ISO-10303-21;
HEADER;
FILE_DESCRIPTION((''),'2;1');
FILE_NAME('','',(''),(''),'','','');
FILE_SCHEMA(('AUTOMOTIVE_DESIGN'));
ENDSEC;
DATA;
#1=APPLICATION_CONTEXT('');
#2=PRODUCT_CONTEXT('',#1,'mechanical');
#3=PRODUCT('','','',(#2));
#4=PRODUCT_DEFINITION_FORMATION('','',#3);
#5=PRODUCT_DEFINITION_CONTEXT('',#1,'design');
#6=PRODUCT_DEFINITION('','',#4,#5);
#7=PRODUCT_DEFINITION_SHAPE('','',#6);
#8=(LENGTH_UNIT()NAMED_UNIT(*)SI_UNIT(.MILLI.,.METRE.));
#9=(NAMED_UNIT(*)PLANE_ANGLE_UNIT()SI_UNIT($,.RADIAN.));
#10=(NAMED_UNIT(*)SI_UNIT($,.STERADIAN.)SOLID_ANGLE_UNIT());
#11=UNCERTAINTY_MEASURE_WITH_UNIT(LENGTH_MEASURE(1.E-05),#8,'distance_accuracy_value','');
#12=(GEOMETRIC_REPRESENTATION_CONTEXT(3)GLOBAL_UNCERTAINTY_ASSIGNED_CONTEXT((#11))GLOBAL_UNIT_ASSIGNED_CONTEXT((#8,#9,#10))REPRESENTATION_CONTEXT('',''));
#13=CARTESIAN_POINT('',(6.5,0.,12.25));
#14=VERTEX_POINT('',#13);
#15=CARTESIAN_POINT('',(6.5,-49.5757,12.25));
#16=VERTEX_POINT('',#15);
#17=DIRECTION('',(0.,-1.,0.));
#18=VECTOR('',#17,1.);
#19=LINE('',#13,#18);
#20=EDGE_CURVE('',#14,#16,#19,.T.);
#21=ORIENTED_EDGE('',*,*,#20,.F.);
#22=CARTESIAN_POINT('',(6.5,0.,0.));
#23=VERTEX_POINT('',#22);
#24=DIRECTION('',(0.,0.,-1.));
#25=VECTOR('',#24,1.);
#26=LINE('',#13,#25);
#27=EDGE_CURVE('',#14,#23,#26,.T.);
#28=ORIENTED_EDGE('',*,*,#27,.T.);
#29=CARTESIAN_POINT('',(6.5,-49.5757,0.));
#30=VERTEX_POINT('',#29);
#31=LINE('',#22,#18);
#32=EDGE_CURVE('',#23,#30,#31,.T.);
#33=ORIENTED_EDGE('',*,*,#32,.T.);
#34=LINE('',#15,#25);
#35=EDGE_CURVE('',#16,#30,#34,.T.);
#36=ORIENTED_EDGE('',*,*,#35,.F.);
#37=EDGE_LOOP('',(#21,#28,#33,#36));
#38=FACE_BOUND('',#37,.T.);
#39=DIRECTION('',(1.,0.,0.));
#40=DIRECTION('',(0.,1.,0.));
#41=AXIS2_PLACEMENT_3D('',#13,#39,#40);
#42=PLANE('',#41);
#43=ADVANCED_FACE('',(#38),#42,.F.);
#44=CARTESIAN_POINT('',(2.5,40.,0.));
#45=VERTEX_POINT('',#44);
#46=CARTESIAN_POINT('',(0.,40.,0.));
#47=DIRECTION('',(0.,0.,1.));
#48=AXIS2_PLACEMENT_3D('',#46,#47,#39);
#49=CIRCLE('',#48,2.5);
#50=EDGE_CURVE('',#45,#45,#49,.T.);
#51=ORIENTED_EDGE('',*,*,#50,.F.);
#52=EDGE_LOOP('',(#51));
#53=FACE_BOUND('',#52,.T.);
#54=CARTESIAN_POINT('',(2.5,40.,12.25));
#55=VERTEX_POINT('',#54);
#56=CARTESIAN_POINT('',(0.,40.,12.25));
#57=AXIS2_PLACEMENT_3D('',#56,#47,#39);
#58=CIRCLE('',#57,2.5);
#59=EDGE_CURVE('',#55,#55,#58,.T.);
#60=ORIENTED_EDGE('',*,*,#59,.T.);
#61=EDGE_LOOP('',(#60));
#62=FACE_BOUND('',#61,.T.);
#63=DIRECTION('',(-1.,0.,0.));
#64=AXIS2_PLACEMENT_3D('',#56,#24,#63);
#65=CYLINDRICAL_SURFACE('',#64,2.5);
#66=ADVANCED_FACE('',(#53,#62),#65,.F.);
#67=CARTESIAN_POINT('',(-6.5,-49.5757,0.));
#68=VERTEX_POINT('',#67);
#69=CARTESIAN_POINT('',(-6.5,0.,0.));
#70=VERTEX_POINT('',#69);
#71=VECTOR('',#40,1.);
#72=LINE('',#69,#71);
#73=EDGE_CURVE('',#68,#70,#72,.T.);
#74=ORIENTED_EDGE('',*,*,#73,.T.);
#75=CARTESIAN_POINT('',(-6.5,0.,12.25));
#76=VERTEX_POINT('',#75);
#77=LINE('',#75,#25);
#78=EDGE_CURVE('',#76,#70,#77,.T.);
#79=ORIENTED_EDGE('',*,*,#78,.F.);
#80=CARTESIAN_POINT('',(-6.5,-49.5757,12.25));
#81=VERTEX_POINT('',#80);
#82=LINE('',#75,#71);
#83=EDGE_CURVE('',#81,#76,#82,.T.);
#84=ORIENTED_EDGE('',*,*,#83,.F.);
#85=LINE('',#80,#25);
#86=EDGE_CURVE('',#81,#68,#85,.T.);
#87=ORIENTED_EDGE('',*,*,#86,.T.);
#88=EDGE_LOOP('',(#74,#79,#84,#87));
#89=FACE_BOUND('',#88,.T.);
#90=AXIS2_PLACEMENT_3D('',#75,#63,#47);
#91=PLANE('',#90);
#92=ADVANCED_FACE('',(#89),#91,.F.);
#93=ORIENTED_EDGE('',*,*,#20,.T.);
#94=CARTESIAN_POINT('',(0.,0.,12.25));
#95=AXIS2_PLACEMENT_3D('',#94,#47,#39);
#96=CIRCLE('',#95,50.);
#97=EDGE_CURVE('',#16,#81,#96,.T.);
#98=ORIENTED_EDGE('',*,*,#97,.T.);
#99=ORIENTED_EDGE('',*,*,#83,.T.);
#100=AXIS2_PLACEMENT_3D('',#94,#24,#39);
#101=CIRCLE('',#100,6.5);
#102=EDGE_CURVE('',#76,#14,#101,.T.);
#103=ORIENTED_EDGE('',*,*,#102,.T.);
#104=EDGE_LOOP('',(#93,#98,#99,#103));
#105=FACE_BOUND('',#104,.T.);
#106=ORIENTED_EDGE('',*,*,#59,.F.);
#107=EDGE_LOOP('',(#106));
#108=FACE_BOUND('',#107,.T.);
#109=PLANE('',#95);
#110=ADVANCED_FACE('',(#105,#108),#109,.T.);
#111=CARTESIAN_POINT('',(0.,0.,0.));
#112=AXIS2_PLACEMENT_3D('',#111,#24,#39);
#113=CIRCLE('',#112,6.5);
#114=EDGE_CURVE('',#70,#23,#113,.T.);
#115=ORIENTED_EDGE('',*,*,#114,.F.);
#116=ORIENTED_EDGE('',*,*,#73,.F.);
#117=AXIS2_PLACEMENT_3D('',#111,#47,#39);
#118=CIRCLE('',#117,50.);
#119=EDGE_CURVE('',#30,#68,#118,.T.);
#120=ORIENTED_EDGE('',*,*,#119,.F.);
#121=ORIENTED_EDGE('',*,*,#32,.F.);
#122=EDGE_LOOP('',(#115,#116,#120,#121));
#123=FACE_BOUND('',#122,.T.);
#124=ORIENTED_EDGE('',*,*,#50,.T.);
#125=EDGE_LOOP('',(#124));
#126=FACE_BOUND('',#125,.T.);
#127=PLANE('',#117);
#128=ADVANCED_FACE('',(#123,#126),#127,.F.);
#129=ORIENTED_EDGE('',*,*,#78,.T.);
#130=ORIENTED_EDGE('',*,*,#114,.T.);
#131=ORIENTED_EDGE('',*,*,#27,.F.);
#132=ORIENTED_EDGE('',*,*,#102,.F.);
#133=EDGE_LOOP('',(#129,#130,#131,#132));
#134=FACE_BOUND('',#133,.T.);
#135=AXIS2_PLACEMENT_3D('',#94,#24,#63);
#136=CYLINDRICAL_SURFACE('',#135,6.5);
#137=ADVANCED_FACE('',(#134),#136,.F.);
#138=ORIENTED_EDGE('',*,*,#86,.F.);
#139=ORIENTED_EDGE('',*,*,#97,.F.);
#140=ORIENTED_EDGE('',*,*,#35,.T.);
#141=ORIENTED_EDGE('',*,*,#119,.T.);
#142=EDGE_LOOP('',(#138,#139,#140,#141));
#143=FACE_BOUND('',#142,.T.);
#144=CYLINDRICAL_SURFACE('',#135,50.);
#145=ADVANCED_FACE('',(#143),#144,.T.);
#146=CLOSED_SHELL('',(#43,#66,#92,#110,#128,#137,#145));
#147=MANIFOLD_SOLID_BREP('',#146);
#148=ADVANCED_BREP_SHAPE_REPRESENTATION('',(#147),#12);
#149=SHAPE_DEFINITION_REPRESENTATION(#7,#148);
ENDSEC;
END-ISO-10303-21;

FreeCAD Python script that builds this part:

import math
import FreeCAD as App
import Part
import Sketcher

V = App.Vector

doc = App.newDocument("Part")
body = doc.addObject("PartDesign::Body", "Body")

# Sketch on XY plane
sketch1 = doc.addObject("Sketcher::SketchObject", "Sketch")
body.addObject(sketch1)
sketch1.AttachmentSupport = (doc.XY_Plane, [""])
sketch1.MapMode = "FlatFace"
sketch1.addGeometry(Part.LineSegment(V(-6.5, -49.6, 0), V(-6.5, 0, 0)), False)
sketch1.addGeometry(Part.ArcOfCircle(Part.Circle(V(0, 0, 0), V(0, 0, 1), 6.5), math.radians(0), math.radians(180)), False)
sketch1.addGeometry(Part.LineSegment(V(6.5, 0, 0), V(6.5, -49.6, 0)), False)
sketch1.addGeometry(Part.ArcOfCircle(Part.Circle(V(0, 0, 0), V(0, 0, 1), 50), math.radians(-83), math.radians(263)), False)
sketch1.addGeometry(Part.Circle(V(0, 40, 0), V(0, 0, 1), 2.5), False)
sketch1.addConstraint(Sketcher.Constraint("Tangent", 0, 2, 1, 2))
sketch1.addConstraint(Sketcher.Constraint("Tangent", 1, 1, 2, 1))
sketch1.addConstraint(Sketcher.Constraint("Coincident", 2, 2, 3, 1))
sketch1.addConstraint(Sketcher.Constraint("Coincident", 3, 2, 0, 1))
sketch1.addConstraint(Sketcher.Constraint("Vertical", 0))
sketch1.addConstraint(Sketcher.Constraint("Vertical", 2))
sketch1.addConstraint(Sketcher.Constraint("Coincident", 1, 3, -1, 1))
sketch1.addConstraint(Sketcher.Constraint("Coincident", 3, 3, -1, 1))
sketch1.addConstraint(Sketcher.Constraint("PointOnObject", 4, 3, -2))
sketch1.addConstraint(Sketcher.Constraint("Diameter", 4, 5.0))
sketch1.addConstraint(Sketcher.Constraint("Radius", 3, 50.0))
sketch1.addConstraint(Sketcher.Constraint("Radius", 1, 6.5))
sketch1.addConstraint(Sketcher.Constraint("DistanceY", -1, 1, 4, 3, 40.0))
pad1 = doc.addObject("PartDesign::Pad", "Pad")
body.addObject(pad1)
pad1.Profile = sketch1
pad1.Length = 12.25

doc.recompute()
